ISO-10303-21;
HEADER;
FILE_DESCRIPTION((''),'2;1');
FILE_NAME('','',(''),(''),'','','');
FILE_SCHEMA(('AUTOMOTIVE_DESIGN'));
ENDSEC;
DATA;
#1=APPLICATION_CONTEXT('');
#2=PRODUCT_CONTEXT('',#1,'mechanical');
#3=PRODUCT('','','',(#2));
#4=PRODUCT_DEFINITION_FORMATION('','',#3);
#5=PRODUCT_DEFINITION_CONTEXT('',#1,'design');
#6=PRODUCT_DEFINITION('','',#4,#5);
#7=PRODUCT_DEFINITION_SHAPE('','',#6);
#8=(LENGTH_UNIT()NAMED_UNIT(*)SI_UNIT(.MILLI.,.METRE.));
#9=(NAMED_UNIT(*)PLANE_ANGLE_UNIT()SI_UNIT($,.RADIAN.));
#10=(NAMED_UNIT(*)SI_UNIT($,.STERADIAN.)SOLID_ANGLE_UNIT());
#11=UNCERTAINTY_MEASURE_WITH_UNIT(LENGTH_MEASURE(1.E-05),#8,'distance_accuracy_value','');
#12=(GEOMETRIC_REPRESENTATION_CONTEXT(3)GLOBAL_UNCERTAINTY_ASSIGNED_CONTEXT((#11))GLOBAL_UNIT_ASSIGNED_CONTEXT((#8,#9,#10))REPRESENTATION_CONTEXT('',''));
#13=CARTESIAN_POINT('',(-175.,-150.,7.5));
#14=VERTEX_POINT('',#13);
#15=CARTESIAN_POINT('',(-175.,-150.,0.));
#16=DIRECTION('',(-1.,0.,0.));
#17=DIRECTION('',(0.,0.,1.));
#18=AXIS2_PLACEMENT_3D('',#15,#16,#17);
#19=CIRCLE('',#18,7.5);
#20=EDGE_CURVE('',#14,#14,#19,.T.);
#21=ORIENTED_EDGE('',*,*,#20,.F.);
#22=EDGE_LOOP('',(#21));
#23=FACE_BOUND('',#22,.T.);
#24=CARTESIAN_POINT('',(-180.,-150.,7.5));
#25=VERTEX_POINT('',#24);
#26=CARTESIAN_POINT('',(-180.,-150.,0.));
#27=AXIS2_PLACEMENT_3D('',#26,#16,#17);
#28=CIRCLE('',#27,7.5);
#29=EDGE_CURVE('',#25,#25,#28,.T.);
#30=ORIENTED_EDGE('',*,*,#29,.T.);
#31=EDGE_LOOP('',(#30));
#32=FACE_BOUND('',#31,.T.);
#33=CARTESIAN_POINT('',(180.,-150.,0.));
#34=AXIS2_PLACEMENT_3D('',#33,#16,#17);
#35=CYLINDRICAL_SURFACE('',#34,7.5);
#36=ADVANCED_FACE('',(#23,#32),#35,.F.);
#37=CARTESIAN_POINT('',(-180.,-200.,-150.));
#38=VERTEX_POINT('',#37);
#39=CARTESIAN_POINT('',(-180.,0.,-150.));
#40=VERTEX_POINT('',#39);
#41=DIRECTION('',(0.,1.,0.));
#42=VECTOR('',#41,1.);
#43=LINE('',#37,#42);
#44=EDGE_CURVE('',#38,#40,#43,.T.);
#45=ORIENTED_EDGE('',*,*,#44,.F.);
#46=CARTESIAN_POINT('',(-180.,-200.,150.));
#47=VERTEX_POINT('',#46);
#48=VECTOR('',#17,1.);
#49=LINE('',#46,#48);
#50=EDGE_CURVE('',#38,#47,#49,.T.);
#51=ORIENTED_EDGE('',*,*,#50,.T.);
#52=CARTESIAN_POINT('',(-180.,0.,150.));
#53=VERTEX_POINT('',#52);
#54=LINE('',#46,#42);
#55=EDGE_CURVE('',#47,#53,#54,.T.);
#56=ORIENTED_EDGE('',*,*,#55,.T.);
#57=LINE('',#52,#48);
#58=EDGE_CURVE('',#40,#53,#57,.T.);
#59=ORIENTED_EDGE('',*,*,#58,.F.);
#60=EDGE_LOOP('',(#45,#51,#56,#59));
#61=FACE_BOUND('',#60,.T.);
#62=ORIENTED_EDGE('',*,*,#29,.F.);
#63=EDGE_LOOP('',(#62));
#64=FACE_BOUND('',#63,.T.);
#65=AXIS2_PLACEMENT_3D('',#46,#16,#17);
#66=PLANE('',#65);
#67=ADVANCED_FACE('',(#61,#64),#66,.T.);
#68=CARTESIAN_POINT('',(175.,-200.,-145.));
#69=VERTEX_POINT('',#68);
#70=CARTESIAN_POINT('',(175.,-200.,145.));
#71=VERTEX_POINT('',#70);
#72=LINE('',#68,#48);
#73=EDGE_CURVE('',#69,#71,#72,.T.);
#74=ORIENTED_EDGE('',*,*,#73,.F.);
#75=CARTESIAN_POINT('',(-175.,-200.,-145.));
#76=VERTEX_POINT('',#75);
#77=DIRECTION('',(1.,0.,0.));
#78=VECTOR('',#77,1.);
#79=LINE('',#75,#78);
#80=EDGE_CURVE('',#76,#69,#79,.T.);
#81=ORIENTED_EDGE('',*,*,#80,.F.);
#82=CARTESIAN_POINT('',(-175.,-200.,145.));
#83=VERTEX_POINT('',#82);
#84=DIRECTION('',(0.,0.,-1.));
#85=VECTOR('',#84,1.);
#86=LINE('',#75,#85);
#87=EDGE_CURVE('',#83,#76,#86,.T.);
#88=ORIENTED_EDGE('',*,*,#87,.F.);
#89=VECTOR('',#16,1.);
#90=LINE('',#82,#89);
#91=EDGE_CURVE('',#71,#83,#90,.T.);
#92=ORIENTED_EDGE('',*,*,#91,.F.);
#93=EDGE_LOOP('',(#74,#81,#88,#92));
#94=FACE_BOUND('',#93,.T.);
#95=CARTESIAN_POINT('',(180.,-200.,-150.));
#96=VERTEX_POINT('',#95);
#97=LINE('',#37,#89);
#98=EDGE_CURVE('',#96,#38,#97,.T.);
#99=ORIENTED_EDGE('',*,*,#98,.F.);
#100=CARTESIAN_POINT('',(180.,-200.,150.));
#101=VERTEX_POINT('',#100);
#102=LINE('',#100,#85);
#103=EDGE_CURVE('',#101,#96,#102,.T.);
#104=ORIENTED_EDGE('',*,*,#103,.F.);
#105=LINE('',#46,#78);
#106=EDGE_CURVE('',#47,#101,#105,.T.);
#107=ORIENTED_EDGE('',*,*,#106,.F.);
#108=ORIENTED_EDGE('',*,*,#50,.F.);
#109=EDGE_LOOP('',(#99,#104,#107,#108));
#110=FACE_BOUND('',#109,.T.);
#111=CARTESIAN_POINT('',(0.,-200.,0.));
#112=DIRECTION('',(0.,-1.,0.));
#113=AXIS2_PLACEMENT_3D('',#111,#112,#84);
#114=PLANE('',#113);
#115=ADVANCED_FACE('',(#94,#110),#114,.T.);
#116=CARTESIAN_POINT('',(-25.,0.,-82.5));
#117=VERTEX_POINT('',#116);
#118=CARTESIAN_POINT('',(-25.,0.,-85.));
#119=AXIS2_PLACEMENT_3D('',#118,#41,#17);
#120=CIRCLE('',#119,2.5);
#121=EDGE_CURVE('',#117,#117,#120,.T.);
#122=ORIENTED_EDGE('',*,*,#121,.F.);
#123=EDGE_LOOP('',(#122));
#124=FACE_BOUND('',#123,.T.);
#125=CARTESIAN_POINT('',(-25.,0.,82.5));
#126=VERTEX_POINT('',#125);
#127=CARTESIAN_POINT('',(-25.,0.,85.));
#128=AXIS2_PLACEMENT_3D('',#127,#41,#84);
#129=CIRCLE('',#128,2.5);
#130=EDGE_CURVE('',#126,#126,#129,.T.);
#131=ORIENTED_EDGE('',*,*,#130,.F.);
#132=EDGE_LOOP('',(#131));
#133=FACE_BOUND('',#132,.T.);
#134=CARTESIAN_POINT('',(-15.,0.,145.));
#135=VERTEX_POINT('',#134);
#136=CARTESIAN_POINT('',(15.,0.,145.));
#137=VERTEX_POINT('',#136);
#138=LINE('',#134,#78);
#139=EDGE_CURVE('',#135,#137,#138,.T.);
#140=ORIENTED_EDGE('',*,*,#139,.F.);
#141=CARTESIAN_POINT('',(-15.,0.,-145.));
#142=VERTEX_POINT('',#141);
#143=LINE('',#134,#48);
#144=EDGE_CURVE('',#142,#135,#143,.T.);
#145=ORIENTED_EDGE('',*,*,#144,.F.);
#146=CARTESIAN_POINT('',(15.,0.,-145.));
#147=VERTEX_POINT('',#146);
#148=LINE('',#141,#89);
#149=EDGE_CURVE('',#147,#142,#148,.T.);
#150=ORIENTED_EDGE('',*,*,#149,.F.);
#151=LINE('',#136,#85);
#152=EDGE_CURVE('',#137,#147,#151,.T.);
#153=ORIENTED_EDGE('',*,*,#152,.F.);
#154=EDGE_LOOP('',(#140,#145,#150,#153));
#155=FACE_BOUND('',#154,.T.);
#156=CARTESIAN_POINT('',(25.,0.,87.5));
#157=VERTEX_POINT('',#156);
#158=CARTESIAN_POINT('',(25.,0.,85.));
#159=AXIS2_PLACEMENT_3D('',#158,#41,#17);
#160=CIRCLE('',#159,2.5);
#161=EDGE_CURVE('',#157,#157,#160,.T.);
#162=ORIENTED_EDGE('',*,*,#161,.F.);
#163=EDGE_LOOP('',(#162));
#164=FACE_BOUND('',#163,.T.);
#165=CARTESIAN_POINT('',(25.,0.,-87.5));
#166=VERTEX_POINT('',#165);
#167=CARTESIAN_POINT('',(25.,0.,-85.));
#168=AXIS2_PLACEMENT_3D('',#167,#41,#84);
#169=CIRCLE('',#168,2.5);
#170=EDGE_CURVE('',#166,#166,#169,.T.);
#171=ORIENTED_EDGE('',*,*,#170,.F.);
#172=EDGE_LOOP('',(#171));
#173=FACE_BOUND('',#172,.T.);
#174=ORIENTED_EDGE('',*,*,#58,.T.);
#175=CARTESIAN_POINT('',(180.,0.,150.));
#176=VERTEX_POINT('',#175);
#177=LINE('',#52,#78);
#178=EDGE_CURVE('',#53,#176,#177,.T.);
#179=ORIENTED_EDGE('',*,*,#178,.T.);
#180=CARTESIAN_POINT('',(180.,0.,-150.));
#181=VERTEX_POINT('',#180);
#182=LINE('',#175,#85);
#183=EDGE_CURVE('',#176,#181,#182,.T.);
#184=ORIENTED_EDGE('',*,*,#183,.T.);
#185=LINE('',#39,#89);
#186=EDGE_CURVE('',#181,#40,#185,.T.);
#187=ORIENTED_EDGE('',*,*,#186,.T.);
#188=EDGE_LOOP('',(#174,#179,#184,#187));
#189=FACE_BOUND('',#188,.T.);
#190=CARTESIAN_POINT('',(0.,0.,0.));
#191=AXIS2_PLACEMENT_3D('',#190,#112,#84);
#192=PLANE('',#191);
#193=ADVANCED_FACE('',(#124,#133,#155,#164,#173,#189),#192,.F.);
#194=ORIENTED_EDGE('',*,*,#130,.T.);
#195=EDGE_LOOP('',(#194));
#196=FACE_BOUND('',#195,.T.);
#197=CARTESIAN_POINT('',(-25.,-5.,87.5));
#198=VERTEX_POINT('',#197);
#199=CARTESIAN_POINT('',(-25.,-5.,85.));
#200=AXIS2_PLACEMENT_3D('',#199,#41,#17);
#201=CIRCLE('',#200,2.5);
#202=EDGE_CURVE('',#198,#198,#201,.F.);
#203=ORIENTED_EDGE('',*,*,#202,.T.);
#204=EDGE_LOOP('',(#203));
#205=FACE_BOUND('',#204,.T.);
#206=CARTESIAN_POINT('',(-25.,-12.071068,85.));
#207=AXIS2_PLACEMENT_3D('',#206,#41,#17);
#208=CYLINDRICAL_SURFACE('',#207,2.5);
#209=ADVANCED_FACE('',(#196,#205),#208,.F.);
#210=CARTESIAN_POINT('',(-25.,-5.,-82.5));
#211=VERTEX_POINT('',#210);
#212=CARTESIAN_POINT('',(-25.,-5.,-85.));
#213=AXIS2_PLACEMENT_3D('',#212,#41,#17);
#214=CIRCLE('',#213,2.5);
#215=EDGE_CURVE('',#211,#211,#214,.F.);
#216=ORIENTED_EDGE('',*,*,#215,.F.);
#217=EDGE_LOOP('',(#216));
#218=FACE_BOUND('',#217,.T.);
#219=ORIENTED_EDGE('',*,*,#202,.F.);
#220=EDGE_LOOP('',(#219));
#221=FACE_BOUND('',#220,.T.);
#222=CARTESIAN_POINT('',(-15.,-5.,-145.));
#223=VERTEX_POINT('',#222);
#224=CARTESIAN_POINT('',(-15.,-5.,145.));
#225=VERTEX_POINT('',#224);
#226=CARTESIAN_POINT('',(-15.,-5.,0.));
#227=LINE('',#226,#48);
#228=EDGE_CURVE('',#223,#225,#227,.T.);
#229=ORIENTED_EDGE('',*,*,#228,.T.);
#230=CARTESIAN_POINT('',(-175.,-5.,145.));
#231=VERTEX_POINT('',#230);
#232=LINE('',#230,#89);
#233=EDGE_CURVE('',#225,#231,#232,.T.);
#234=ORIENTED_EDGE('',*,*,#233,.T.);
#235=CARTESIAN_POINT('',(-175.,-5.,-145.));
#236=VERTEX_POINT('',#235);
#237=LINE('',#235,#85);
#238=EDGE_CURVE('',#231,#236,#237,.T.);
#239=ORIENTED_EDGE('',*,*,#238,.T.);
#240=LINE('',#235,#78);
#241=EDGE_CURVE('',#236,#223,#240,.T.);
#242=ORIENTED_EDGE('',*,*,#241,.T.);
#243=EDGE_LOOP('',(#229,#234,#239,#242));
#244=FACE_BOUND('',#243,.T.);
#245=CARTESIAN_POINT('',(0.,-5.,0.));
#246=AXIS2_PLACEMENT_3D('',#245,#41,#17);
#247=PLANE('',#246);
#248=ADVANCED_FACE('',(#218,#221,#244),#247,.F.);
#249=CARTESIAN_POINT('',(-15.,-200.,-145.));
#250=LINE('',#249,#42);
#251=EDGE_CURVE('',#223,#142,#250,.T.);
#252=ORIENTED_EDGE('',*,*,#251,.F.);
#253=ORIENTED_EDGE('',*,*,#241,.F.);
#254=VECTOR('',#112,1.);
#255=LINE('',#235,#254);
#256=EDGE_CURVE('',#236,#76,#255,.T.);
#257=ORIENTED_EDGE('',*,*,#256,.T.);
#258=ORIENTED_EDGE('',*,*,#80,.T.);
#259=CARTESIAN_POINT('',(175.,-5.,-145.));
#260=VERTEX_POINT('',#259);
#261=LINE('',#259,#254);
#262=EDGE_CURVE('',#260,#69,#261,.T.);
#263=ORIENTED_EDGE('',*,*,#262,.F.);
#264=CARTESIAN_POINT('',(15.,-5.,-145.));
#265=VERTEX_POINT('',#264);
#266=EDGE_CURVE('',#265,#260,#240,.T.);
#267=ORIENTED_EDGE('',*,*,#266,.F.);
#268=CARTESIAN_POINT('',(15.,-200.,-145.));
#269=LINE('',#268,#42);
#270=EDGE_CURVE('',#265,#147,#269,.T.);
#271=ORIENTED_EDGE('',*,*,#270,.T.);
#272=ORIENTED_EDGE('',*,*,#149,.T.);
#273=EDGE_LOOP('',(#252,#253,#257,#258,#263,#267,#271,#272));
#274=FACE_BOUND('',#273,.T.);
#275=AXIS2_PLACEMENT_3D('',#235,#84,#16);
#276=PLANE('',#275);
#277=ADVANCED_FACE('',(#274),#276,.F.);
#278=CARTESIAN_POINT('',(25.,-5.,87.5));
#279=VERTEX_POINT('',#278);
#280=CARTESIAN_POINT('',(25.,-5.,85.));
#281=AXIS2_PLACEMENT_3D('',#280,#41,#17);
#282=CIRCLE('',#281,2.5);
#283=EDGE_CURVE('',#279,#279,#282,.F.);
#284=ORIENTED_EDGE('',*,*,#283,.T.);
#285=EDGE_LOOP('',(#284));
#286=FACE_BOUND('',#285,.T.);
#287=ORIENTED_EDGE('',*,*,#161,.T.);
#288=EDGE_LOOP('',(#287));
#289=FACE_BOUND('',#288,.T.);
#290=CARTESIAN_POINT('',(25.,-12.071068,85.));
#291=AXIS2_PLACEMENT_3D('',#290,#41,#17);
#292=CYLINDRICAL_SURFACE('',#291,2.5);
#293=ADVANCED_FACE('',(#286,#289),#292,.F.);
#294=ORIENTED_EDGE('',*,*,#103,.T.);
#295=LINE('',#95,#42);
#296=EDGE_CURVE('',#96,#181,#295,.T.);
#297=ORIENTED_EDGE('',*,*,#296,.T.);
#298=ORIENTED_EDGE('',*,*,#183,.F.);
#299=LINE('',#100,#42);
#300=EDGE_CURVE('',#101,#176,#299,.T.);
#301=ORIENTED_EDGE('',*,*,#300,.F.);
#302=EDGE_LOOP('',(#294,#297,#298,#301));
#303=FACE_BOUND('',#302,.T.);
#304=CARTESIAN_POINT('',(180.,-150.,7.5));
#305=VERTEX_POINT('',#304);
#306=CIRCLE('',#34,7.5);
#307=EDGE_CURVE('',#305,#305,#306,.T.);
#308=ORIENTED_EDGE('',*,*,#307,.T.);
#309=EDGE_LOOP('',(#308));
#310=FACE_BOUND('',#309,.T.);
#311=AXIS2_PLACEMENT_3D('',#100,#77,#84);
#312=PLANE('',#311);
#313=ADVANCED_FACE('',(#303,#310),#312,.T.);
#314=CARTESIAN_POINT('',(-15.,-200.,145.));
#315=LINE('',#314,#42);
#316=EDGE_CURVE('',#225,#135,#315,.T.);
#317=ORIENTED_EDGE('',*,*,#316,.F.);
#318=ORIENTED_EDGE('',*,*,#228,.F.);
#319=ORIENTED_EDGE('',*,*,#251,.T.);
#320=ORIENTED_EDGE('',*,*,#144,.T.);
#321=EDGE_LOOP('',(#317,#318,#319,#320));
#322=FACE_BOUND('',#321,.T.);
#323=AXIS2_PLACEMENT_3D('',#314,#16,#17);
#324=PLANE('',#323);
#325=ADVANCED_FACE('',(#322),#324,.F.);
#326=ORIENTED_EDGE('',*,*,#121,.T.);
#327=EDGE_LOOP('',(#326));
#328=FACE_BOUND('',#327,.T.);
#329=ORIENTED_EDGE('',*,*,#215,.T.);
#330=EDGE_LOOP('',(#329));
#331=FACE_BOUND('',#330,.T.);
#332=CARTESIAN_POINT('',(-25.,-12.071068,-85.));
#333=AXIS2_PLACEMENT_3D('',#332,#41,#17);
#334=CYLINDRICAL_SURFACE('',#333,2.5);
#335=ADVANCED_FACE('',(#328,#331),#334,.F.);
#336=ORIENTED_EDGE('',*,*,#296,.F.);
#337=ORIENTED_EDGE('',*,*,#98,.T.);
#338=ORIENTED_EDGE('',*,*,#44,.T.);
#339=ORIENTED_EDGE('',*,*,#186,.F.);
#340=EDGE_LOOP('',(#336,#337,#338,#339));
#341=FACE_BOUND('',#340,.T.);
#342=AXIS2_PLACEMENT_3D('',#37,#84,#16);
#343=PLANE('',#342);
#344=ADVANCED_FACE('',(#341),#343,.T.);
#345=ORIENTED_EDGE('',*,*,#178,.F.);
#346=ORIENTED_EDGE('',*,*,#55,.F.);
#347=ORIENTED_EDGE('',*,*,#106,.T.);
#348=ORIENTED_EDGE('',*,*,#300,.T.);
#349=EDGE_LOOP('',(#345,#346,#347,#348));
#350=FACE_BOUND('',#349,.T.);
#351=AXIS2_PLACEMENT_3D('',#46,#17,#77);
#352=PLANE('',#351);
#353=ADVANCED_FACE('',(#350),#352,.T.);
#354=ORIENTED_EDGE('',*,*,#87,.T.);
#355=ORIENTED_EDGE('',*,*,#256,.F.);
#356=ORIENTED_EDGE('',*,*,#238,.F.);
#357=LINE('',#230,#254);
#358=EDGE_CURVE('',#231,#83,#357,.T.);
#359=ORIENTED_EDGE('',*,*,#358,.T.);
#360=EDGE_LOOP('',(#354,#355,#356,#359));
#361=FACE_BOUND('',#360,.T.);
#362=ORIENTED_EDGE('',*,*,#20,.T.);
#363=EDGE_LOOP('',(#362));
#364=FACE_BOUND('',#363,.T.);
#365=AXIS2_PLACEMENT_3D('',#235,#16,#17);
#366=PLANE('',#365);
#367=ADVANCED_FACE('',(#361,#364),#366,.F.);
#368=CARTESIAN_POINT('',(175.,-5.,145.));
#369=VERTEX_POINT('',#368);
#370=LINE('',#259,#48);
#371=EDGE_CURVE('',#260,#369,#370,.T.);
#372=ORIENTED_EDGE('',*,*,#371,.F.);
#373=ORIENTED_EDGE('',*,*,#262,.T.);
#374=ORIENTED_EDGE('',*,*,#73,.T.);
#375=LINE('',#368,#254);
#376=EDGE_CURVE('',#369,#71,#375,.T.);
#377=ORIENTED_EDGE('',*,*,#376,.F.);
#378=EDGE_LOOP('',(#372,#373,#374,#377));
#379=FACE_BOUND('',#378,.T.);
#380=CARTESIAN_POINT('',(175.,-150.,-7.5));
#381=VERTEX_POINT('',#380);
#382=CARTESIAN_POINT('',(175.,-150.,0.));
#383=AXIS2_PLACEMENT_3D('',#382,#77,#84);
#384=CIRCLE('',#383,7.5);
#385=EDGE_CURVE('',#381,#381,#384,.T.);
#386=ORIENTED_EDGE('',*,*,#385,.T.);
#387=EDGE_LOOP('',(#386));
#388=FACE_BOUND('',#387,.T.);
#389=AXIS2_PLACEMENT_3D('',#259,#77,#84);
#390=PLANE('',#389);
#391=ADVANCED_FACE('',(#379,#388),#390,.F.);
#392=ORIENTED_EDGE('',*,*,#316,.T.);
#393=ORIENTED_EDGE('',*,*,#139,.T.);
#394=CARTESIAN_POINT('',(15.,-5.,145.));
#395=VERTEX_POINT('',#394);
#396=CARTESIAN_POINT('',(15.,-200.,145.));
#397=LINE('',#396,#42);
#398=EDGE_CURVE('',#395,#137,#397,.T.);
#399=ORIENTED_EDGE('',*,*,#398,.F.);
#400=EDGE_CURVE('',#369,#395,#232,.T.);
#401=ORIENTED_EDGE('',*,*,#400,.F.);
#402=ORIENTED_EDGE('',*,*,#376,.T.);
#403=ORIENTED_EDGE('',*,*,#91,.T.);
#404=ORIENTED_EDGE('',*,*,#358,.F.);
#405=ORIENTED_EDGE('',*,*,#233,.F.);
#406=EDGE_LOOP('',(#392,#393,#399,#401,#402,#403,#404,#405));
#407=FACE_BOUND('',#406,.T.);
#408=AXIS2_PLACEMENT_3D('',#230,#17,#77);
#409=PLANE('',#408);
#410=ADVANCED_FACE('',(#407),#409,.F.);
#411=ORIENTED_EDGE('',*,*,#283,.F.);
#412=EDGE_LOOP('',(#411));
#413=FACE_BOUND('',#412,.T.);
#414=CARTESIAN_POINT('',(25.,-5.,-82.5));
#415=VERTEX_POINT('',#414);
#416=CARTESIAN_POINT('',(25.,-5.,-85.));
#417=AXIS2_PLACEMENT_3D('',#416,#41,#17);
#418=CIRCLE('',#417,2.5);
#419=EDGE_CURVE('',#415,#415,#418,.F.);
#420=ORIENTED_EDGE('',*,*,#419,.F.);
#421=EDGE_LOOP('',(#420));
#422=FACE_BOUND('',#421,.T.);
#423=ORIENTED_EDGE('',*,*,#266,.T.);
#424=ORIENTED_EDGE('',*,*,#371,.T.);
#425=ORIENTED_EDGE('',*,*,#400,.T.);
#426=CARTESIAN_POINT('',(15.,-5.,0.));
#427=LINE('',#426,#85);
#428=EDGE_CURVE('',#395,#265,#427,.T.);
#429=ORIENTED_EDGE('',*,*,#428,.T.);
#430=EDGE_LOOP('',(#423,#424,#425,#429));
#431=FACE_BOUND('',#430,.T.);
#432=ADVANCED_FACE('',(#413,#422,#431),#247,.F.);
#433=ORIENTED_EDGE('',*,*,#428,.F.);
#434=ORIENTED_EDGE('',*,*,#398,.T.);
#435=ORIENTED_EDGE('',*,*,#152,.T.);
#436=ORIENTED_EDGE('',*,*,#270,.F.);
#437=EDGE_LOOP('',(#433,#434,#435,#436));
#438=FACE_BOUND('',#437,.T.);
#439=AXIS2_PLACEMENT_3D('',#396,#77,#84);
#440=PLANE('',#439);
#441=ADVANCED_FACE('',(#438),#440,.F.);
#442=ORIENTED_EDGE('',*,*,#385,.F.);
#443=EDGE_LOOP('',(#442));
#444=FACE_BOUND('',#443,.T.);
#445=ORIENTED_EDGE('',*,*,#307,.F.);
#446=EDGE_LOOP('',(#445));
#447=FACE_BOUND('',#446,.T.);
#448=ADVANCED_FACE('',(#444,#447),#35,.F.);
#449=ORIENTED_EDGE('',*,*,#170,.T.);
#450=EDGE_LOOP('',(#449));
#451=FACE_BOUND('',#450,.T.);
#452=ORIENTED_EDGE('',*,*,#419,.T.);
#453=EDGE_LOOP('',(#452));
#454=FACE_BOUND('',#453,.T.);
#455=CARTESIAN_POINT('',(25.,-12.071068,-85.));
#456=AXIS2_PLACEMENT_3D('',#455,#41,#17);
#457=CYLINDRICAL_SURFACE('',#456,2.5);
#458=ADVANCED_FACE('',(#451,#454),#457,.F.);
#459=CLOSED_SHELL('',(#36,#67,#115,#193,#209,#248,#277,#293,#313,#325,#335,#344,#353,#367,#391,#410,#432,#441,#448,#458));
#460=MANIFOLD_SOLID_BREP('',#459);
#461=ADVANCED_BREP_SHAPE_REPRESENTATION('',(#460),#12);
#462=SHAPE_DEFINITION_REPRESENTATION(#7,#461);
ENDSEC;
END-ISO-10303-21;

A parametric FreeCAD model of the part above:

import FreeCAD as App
import Part
import Sketcher

V = App.Vector
Q = App.Units.Quantity

doc = App.newDocument("Part")
body = doc.addObject("PartDesign::Body", "Body")

# Sketch on XZ plane
sketch1 = body.newObject("Sketcher::SketchObject", "Sketch")
sketch1.AttachmentSupport = (doc.getObject("XZ_Plane"), [""])
sketch1.MapMode = "FlatFace"
sketch1.addGeometry([
    Part.LineSegment(V(-180, -150, 0), V(-180, 150, 0)),
    Part.LineSegment(V(-180, 150, 0), V(180, 150, 0)),
    Part.LineSegment(V(180, 150, 0), V(180, -150, 0)),
    Part.LineSegment(V(180, -150, 0), V(-180, -150, 0)),
], False)
sketch1.addConstraint([
    Sketcher.Constraint("Coincident", 0, 2, 1, 1),
    Sketcher.Constraint("Coincident", 1, 2, 2, 1),
    Sketcher.Constraint("Coincident", 2, 2, 3, 1),
    Sketcher.Constraint("Coincident", 3, 2, 0, 1),
    Sketcher.Constraint("Vertical", 0),
    Sketcher.Constraint("Horizontal", 1),
    Sketcher.Constraint("Vertical", 2),
    Sketcher.Constraint("Horizontal", 3),
    Sketcher.Constraint("Symmetric", 0, 2, 2, 2, -1, 1),
    Sketcher.Constraint("DistanceX", 1, 1, 1, 2, Q("360 mm")),
    Sketcher.Constraint("DistanceY", 0, 1, 0, 2, Q("300 mm")),
])
pad1 = body.newObject("PartDesign::Pad", "Pad")
pad1.Profile = sketch1
pad1.Length = 200

# Sketch on XZ plane
sketch2 = body.newObject("Sketcher::SketchObject", "Sketch001")
sketch2.AttachmentSupport = (doc.getObject("XZ_Plane"), [""])
sketch2.MapMode = "FlatFace"
sketch2.AttachmentOffset = App.Placement(V(0, 0, 200), App.Rotation())
sketch2.addGeometry([
    Part.LineSegment(V(-175, 145, 0), V(-175, -145, 0)),
    Part.LineSegment(V(-175, -145, 0), V(175, -145, 0)),
    Part.LineSegment(V(175, -145, 0), V(175, 145, 0)),
    Part.LineSegment(V(175, 145, 0), V(-175, 145, 0)),
], False)
sketch2.addConstraint([
    Sketcher.Constraint("Coincident", 0, 2, 1, 1),
    Sketcher.Constraint("Coincident", 1, 2, 2, 1),
    Sketcher.Constraint("Coincident", 2, 2, 3, 1),
    Sketcher.Constraint("Coincident", 3, 2, 0, 1),
    Sketcher.Constraint("Vertical", 0),
    Sketcher.Constraint("Horizontal", 1),
    Sketcher.Constraint("Vertical", 2),
    Sketcher.Constraint("Horizontal", 3),
    Sketcher.Constraint("Symmetric", 0, 2, 2, 2, -1, 1),
    Sketcher.Constraint("DistanceX", 1, 1, 1, 2, Q("350 mm")),
    Sketcher.Constraint("DistanceY", 0, 2, 0, 1, Q("290 mm")),
])
pocket1 = body.newObject("PartDesign::Pocket", "Pocket")
pocket1.Profile = sketch2
pocket1.Length = 195

# Sketch on XZ plane
sketch3 = body.newObject("Sketcher::SketchObject", "Sketch002")
sketch3.AttachmentSupport = (doc.getObject("XZ_Plane"), [""])
sketch3.MapMode = "FlatFace"
sketch3.addGeometry([
    Part.LineSegment(V(-15, -145, 0), V(-15, 145, 0)),
    Part.LineSegment(V(-15, 145, 0), V(15, 145, 0)),
    Part.LineSegment(V(15, 145, 0), V(15, -145, 0)),
    Part.LineSegment(V(15, -145, 0), V(-15, -145, 0)),
], False)
sketch3.addConstraint([
    Sketcher.Constraint("Coincident", 0, 2, 1, 1),
    Sketcher.Constraint("Coincident", 1, 2, 2, 1),
    Sketcher.Constraint("Coincident", 2, 2, 3, 1),
    Sketcher.Constraint("Coincident", 3, 2, 0, 1),
    Sketcher.Constraint("Vertical", 0),
    Sketcher.Constraint("Horizontal", 1),
    Sketcher.Constraint("Vertical", 2),
    Sketcher.Constraint("Horizontal", 3),
    Sketcher.Constraint("Symmetric", 0, 2, 2, 2, -1, 1),
    Sketcher.Constraint("DistanceX", 1, 1, 1, 2, Q("30 mm")),
    Sketcher.Constraint("DistanceY", 0, 1, 0, 2, Q("290 mm")),
])
pocket2 = body.newObject("PartDesign::Pocket", "Pocket001")
pocket2.Profile = sketch3
pocket2.Type = "ThroughAll"
pocket2.Reversed = True

# Sketch on YZ plane
sketch4 = body.newObject("Sketcher::SketchObject", "Sketch003")
sketch4.AttachmentSupport = (doc.getObject("YZ_Plane"), [""])
sketch4.MapMode = "FlatFace"
sketch4.AttachmentOffset = App.Placement(V(0, 0, -180), App.Rotation())
sketch4.addGeometry(Part.Circle(V(-150, 0, 0), V(0, 0, 1), 8), False)
sketch4.addConstraint([
    Sketcher.Constraint("PointOnObject", 0, 3, -1),
    Sketcher.Constraint("Diameter", 0, Q("15 mm")),
    Sketcher.Constraint("DistanceX", 0, 3, -1, 1, Q("150 mm")),
])
pocket3 = body.newObject("PartDesign::Pocket", "Pocket002")
pocket3.Profile = sketch4
pocket3.Type = "ThroughAll"
pocket3.Reversed = True

# Sketch on XZ plane
sketch5 = body.newObject("Sketcher::SketchObject", "Sketch004")
sketch5.AttachmentSupport = (doc.getObject("XZ_Plane"), [""])
sketch5.MapMode = "FlatFace"
sketch5.addGeometry([
    Part.Circle(V(-25, -85, 0), V(0, 0, 1), 2.5),
    Part.Circle(V(25, -85, 0), V(0, 0, 1), 2.5),
    Part.Circle(V(25, 85, 0), V(0, 0, 1), 2.5),
    Part.Circle(V(-25, 85, 0), V(0, 0, 1), 2.5),
], False)
sketch5.addConstraint([
    Sketcher.Constraint("Equal", 0, 1),
    Sketcher.Constraint("Equal", 1, 2),
    Sketcher.Constraint("Equal", 2, 3),
    Sketcher.Constraint("Symmetric", 0, 3, 2, 3, -1, 1),
    Sketcher.Constraint("Symmetric", 1, 3, 3, 3, -1, 1),
    Sketcher.Constraint("Symmetric", 0, 3, 1, 3, -2),
    Sketcher.Constraint("Diameter", 0, Q("5 mm")),
    Sketcher.Constraint("DistanceX", 0, 3, -1, 1, Q("25 mm")),
    Sketcher.Constraint("DistanceY", 0, 3, -1, 1, Q("85 mm")),
])
pocket4 = body.newObject("PartDesign::Pocket", "Pocket003")
pocket4.Profile = sketch5
pocket4.Length = 5
pocket4.Reversed = True

doc.recompute()
